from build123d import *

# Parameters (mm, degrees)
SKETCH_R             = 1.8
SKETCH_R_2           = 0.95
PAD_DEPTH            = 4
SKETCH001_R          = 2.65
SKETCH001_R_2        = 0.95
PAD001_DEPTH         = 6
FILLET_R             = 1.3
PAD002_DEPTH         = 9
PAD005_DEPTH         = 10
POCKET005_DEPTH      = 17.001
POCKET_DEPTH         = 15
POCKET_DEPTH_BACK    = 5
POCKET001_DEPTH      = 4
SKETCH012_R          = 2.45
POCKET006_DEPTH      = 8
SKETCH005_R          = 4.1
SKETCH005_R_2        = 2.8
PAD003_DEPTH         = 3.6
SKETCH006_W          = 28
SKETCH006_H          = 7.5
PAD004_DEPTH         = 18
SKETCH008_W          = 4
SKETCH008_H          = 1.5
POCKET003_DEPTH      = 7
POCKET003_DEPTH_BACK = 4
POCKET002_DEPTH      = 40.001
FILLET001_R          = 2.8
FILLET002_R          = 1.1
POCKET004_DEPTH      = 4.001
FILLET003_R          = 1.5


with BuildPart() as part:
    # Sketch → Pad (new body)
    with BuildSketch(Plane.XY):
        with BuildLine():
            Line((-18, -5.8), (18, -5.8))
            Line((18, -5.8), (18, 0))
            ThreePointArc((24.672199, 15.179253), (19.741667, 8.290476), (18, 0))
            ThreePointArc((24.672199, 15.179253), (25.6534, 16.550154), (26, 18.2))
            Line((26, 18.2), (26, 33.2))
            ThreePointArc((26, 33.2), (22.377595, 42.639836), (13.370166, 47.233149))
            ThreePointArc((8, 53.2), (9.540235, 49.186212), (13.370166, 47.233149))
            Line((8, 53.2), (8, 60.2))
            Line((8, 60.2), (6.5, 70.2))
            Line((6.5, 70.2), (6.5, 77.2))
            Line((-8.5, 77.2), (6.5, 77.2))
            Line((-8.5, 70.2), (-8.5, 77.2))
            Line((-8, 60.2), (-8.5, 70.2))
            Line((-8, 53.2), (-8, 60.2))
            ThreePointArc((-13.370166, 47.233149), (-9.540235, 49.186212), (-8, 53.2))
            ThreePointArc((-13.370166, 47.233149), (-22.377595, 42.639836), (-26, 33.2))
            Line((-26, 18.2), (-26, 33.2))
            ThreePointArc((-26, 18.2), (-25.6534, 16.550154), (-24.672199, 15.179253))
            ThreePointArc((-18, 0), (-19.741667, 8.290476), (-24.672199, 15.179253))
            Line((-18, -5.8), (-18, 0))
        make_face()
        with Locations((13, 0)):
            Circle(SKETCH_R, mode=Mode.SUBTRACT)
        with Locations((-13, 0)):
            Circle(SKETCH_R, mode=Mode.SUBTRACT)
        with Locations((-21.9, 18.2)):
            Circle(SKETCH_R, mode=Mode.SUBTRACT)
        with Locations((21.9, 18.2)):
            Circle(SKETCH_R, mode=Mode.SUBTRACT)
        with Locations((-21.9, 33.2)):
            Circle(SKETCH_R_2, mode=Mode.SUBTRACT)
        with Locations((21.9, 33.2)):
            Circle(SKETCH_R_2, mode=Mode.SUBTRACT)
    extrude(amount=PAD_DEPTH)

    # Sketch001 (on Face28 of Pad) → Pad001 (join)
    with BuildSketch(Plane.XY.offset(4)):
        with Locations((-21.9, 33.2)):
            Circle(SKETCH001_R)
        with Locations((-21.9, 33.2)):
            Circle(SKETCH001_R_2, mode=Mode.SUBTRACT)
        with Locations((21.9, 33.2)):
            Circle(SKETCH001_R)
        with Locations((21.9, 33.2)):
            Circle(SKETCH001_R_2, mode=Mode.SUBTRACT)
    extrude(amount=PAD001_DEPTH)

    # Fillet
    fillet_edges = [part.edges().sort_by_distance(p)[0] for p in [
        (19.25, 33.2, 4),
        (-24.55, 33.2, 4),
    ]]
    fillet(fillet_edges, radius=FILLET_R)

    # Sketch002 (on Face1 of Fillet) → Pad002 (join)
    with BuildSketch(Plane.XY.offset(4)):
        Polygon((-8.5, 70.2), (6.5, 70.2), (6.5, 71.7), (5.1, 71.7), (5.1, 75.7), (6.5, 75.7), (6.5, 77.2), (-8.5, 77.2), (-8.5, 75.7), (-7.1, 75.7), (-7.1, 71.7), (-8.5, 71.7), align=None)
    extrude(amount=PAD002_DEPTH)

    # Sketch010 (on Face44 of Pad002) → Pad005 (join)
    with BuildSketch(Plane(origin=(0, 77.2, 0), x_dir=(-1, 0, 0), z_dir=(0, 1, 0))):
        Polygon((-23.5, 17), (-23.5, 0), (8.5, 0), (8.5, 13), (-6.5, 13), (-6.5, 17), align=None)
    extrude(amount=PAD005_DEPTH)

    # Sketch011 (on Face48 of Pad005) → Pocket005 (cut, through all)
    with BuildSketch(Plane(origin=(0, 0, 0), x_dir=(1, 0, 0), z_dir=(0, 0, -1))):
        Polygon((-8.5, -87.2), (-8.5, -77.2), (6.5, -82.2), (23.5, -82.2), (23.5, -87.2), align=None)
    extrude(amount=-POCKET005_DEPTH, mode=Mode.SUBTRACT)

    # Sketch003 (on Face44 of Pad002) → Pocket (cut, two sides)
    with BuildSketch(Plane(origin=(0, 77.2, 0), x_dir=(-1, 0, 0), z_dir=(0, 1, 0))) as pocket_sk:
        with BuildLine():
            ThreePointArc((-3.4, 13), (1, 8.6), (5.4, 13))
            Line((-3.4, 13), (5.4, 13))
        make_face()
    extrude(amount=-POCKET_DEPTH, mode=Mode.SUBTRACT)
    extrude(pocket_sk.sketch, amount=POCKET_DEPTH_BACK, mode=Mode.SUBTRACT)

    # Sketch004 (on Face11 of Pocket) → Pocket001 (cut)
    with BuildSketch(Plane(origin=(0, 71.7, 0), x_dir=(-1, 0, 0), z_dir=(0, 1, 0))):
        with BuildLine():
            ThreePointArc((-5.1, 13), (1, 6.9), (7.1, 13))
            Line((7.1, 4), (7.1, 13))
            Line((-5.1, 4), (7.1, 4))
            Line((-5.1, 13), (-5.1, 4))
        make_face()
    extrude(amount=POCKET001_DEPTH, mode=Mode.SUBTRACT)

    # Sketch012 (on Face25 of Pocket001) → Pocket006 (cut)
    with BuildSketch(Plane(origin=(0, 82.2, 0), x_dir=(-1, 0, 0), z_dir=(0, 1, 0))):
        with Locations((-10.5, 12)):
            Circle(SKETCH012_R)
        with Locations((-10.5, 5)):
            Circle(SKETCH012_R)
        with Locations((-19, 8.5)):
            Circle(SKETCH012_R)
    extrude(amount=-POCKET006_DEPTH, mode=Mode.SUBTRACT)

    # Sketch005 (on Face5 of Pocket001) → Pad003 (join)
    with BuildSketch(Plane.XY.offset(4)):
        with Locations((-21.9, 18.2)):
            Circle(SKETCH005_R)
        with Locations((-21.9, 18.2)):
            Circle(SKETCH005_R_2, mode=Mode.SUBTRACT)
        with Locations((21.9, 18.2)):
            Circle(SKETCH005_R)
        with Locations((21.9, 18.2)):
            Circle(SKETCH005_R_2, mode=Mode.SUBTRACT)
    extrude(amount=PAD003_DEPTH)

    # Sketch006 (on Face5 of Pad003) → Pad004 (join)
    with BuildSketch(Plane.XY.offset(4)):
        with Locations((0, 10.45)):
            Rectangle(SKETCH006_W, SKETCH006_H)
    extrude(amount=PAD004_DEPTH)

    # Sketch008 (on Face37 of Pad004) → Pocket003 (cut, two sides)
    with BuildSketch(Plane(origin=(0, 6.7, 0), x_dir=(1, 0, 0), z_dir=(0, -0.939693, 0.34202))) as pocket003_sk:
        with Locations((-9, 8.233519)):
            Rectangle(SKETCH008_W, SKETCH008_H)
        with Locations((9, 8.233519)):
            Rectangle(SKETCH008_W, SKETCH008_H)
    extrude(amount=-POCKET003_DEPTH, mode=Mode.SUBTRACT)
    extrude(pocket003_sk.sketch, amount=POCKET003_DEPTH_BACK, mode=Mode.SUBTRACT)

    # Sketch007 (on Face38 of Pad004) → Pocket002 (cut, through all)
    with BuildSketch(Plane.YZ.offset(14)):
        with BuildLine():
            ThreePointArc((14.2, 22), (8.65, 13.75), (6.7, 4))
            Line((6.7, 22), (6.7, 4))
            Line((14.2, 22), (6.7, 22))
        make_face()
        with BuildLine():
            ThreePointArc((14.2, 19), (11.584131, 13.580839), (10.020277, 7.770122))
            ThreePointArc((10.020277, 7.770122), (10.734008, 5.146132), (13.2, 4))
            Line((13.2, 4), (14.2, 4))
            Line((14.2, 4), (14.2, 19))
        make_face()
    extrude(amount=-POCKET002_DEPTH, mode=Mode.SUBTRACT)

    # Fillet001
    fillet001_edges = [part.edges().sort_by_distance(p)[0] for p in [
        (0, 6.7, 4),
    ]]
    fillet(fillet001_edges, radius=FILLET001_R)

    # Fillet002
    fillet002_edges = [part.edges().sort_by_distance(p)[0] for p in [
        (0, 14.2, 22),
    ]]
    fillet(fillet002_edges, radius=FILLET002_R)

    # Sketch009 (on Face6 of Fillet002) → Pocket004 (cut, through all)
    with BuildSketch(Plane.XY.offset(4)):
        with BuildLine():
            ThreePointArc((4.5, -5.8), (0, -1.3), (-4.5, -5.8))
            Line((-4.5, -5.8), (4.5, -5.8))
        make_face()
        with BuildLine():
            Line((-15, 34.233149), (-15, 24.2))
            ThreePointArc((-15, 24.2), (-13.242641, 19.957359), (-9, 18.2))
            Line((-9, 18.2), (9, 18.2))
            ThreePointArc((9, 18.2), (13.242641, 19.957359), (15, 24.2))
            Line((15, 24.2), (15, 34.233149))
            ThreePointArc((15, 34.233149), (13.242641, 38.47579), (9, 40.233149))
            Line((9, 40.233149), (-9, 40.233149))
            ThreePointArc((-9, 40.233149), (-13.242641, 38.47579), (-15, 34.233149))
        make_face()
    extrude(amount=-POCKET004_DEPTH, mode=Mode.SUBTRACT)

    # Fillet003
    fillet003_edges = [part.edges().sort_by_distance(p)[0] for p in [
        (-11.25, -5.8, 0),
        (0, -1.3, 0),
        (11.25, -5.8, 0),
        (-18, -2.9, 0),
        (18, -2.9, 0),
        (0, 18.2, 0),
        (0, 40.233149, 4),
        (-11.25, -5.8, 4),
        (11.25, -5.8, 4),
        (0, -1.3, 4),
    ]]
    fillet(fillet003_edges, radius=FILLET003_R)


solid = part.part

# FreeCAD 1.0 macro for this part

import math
import FreeCAD as App
import Part
import Sketcher
Q = App.Units.Quantity


def edges_at(feature, points):
    """Names of the edges that pass closest to the given points."""
    edges = feature.Shape.Edges
    near = lambda p: min(range(len(edges)), key=lambda i: edges[i].distToShape(Part.Vertex(*p))[0])
    return sorted({f"Edge{near(p) + 1}" for p in points})


def add_polygon(sketch, points):
    """Adds a closed chain of lines whose ends are joined by coincident constraints."""
    first, n = sketch.GeometryCount, len(points)
    for a, b in zip(points, points[1:] + points[:1]):
        sketch.addGeometry(Part.LineSegment(App.Vector(*a, 0), App.Vector(*b, 0)), False)
    for i in range(n):
        sketch.addConstraint(Sketcher.Constraint("Coincident", first + i, 2, first + (i + 1) % n, 1))

doc = App.newDocument("Part")
params = doc.addObject("Spreadsheet::Sheet", "Params")
for row, (alias, value) in enumerate([
    ("sketch1_radius", "6.000001 mm"),
    ("sketch1_diameter", "3.6 mm"),
    ("sketch1_diameter2", "1.9 mm"),
    ("sketch1_width", "36 mm"),
    ("sketch1_width2", "15 mm"),
    ("pad1_length", "4 mm"),
    ("sketch2_diameter", "5.3 mm"),
    ("sketch2_diameter2", "1.9 mm"),
    ("pad2_length", "6 mm"),
    ("fillet_radius", "1.3 mm"),
    ("sketch3_width", "15 mm"),
    ("sketch3_height", "4 mm"),
    ("sketch3_width2", "1.4 mm"),
    ("sketch3_height2", "1.5 mm"),
    ("pad3_length", "9 mm"),
    ("sketch4_width", "32 mm"),
    ("sketch4_width2", "15 mm"),
    ("sketch4_height", "13 mm"),
    ("pad4_length", "10 mm"),
    ("sketch5_width", "32 mm"),
    ("sketch5_width2", "17 mm"),
    ("sketch5_height", "10 mm"),
    ("sketch5_height2", "5 mm"),
    ("sketch6_radius", "4.4 mm"),
    ("sketch7_radius", "6.1 mm"),
    ("sketch7_height", "9 mm"),
    ("pocket3_length", "4 mm"),
    ("sketch8_diameter", "4.9 mm"),
    ("pocket4_length", "8 mm"),
    ("sketch9_diameter", "8.2 mm"),
    ("sketch9_diameter2", "5.6 mm"),
    ("pad5_length", "3.6 mm"),
    ("sketch10_width", "28 mm"),
    ("sketch10_height", "7.5 mm"),
    ("pad6_length", "18 mm"),
    ("sketch11_width", "4 mm"),
    ("sketch11_height", "1.5 mm"),
    ("pocket5_length", "7 mm"),
    ("pocket5_length2", "4 mm"),
    ("sketch12_width", "1 mm"),
    ("sketch12_height", "18 mm"),
    ("sketch12_height2", "15 mm"),
    ("sketch12_radius", "25.35 mm"),
    ("fillet2_radius", "2.8 mm"),
    ("fillet3_radius", "1.1 mm"),
    ("sketch13_radius", "5.999999 mm"),
    ("sketch13_radius2", "4.5 mm"),
    ("sketch13_width", "18 mm"),
    ("fillet4_radius", "1.5 mm"),
], start=1):
    params.set(f"A{row}", alias)
    params.set(f"B{row}", "=" + value)
    params.setAlias(f"B{row}", alias)

body = doc.addObject("PartDesign::Body", "Body")

sketch1 = doc.addObject("Sketcher::SketchObject", "Sketch")
body.addObject(sketch1)
sketch1.AttachmentSupport = (doc.XY_Plane, [""])
sketch1.MapMode = "FlatFace"
sketch1.addGeometry([
    Part.LineSegment(App.Vector(-18, -5.8, 0), App.Vector(18, -5.8, 0)),
    Part.LineSegment(App.Vector(18, -5.8, 0), App.Vector(18, 0, 0)),
    Part.ArcOfCircle(Part.Circle(App.Vector(38.6, 0, 0), App.Vector(0, 0, 1), 20.6), math.radians(133), math.radians(180)),
    Part.ArcOfCircle(Part.Circle(App.Vector(21.9, 18.2, 0), App.Vector(0, 0, 1), 4.1), math.radians(-47), math.radians(0)),
    Part.LineSegment(App.Vector(26, 18.2, 0), App.Vector(26, 33.2, 0)),
    Part.ArcOfCircle(Part.Circle(App.Vector(11.9, 33.2, 0), App.Vector(0, 0, 1), 14.1), math.radians(0), math.radians(84)),
    Part.ArcOfCircle(Part.Circle(App.Vector(14, 53.2, 0), App.Vector(0, 0, 1), 6), math.radians(-180), math.radians(-96)),
    Part.LineSegment(App.Vector(8, 53.2, 0), App.Vector(8, 60.2, 0)),
    Part.LineSegment(App.Vector(8, 60.2, 0), App.Vector(6.5, 70.2, 0)),
    Part.LineSegment(App.Vector(6.5, 70.2, 0), App.Vector(6.5, 77.2, 0)),
    Part.LineSegment(App.Vector(6.5, 77.2, 0), App.Vector(-8.5, 77.2, 0)),
    Part.LineSegment(App.Vector(-8.5, 77.2, 0), App.Vector(-8.5, 70.2, 0)),
    Part.LineSegment(App.Vector(-8.5, 70.2, 0), App.Vector(-8, 60.2, 0)),
    Part.LineSegment(App.Vector(-8, 60.2, 0), App.Vector(-8, 53.2, 0)),
    Part.ArcOfCircle(Part.Circle(App.Vector(-14, 53.2, 0), App.Vector(0, 0, 1), 6), math.radians(-84), math.radians(0)),
    Part.ArcOfCircle(Part.Circle(App.Vector(-11.9, 33.2, 0), App.Vector(0, 0, 1), 14.1), math.radians(96), math.radians(180)),
    Part.LineSegment(App.Vector(-26, 33.2, 0), App.Vector(-26, 18.2, 0)),
    Part.ArcOfCircle(Part.Circle(App.Vector(-21.9, 18.2, 0), App.Vector(0, 0, 1), 4.1), math.radians(180), math.radians(227)),
    Part.ArcOfCircle(Part.Circle(App.Vector(-38.6, 0, 0), App.Vector(0, 0, 1), 20.6), math.radians(0), math.radians(47)),
    Part.LineSegment(App.Vector(-18, 0, 0), App.Vector(-18, -5.8, 0)),
    Part.Circle(App.Vector(-13, 0, 0), App.Vector(0, 0, 1), 1.8),
    Part.Circle(App.Vector(13, 0, 0), App.Vector(0, 0, 1), 1.8),
    Part.Circle(App.Vector(-21.9, 18.2, 0), App.Vector(0, 0, 1), 1.8),
    Part.Circle(App.Vector(-21.9, 33.2, 0), App.Vector(0, 0, 1), 0.9),
    Part.Circle(App.Vector(21.9, 18.2, 0), App.Vector(0, 0, 1), 1.8),
    Part.Circle(App.Vector(21.9, 33.2, 0), App.Vector(0, 0, 1), 0.9),
], False)
sketch1.addConstraint([
    Sketcher.Constraint("Coincident", 0, 2, 1, 1),
    Sketcher.Constraint("Tangent", 1, 2, 2, 2),
    Sketcher.Constraint("Tangent", 2, 1, 3, 1),
    Sketcher.Constraint("Tangent", 3, 2, 4, 1),
    Sketcher.Constraint("Tangent", 4, 2, 5, 1),
    Sketcher.Constraint("Tangent", 5, 2, 6, 2),
    Sketcher.Constraint("Tangent", 6, 1, 7, 1),
    Sketcher.Constraint("Coincident", 7, 2, 8, 1),
    Sketcher.Constraint("Coincident", 8, 2, 9, 1),
    Sketcher.Constraint("Coincident", 9, 2, 10, 1),
    Sketcher.Constraint("Coincident", 10, 2, 11, 1),
    Sketcher.Constraint("Coincident", 11, 2, 12, 1),
    Sketcher.Constraint("Coincident", 12, 2, 13, 1),
    Sketcher.Constraint("Tangent", 13, 2, 14, 2),
    Sketcher.Constraint("Tangent", 14, 1, 15, 1),
    Sketcher.Constraint("Tangent", 15, 2, 16, 1),
    Sketcher.Constraint("Tangent", 16, 2, 17, 1),
    Sketcher.Constraint("Tangent", 17, 2, 18, 2),
    Sketcher.Constraint("Tangent", 18, 1, 19, 1),
    Sketcher.Constraint("Coincident", 19, 2, 0, 1),
    Sketcher.Constraint("Horizontal", 0),
    Sketcher.Constraint("Vertical", 1),
    Sketcher.Constraint("Vertical", 4),
    Sketcher.Constraint("Vertical", 7),
    Sketcher.Constraint("Vertical", 9),
    Sketcher.Constraint("Horizontal", 10),
    Sketcher.Constraint("Vertical", 11),
    Sketcher.Constraint("Vertical", 13),
    Sketcher.Constraint("Vertical", 16),
    Sketcher.Constraint("Vertical", 19),
    Sketcher.Constraint("Coincident", 22, 3, 17, 3),
    Sketcher.Constraint("Coincident", 24, 3, 3, 3),
    Sketcher.Constraint("Equal", 6, 14),
    Sketcher.Constraint("Equal", 5, 15),
    Sketcher.Constraint("Equal", 3, 17),
    Sketcher.Constraint("Equal", 2, 18),
    Sketcher.Constraint("Equal", 20, 21),
    Sketcher.Constraint("Equal", 21, 22),
    Sketcher.Constraint("Equal", 22, 24),
    Sketcher.Constraint("Equal", 23, 25),
    Sketcher.Constraint("Symmetric", 2, 3, 18, 3, -1, 1),
    Sketcher.Constraint("Symmetric", 20, 3, 21, 3, -1, 1),
    Sketcher.Constraint("Symmetric", 6, 3, 14, 3, -2),
    Sketcher.Constraint("Symmetric", 3, 3, 17, 3, -2),
    Sketcher.Constraint("Symmetric", 23, 3, 25, 3, -2),
    Sketcher.Constraint("PointOnObject", 20, 3, -1),
    Sketcher.Constraint("Horizontal", 15, 3, 23, 3),
    Sketcher.Constraint("Horizontal", 8, 2, 11, 2),
    Sketcher.Constraint("Horizontal", 7, 2, 12, 2),
    Sketcher.Constraint("Vertical", 22, 3, 23, 3),
    Sketcher.Constraint("Equal", 10, 4),
    Sketcher.Constraint("Equal", 7, 9),
    Sketcher.Constraint("Radius", 6, Q("6.000001 mm")),
    Sketcher.Constraint("Diameter", 20, Q("3.6 mm")),
    Sketcher.Constraint("Diameter", 23, Q("1.9 mm")),
    Sketcher.Constraint("DistanceX", 0, 1, 0, 2, Q("36 mm")),
    Sketcher.Constraint("DistanceX", 10, 2, 10, 1, Q("15 mm")),
    Sketcher.Constraint("DistanceY", 7, 1, 7, 2, Q("7 mm")),
    Sketcher.Constraint("DistanceY", 1, 1, 1, 2, Q("5.8 mm")),
    Sketcher.Constraint("DistanceX", -1, 1, 6, 3, Q("14.000001 mm")),
    Sketcher.Constraint("DistanceX", 20, 3, -1, 1, Q("13 mm")),
    Sketcher.Constraint("DistanceX", -1, 1, 3, 2, Q("26 mm")),
    Sketcher.Constraint("DistanceY", 5, 3, 6, 3, Q("20 mm")),
    Sketcher.Constraint("DistanceY", 0, 2, 24, 3, Q("24 mm")),
    Sketcher.Constraint("DistanceY", 7, 2, 8, 2, Q("10 mm")),
    Sketcher.Constraint("DistanceX", 22, 3, -1, 1, Q("21.9 mm")),
    Sketcher.Constraint("DistanceX", -1, 1, 8, 2, Q("6.5 mm")),
])
sketch1.setExpression("Constraints[52]", "Params.sketch1_radius")
sketch1.setExpression("Constraints[53]", "Params.sketch1_diameter")
sketch1.setExpression("Constraints[54]", "Params.sketch1_diameter2")
sketch1.setExpression("Constraints[55]", "Params.sketch1_width")
sketch1.setExpression("Constraints[56]", "Params.sketch1_width2")
pad1 = doc.addObject("PartDesign::Pad", "Pad")
body.addObject(pad1)
pad1.Profile = sketch1
pad1.setExpression("Length", "Params.pad1_length")

sketch2 = doc.addObject("Sketcher::SketchObject", "Sketch001")
body.addObject(sketch2)
sketch2.AttachmentSupport = (doc.XY_Plane, [""])
sketch2.MapMode = "FlatFace"
sketch2.AttachmentOffset = App.Placement(App.Vector(0, 0, 4), App.Rotation())
sketch2.addGeometry([
    Part.Circle(App.Vector(-21.9, 33.2, 0), App.Vector(0, 0, 1), 2.6),
    Part.Circle(App.Vector(-21.9, 33.2, 0), App.Vector(0, 0, 1), 0.9),
    Part.Circle(App.Vector(21.9, 33.2, 0), App.Vector(0, 0, 1), 2.6),
    Part.Circle(App.Vector(21.9, 33.2, 0), App.Vector(0, 0, 1), 0.9),
], False)
sketch2.addConstraint([
    Sketcher.Constraint("Coincident", 1, 3, 0, 3),
    Sketcher.Constraint("Coincident", 3, 3, 2, 3),
    Sketcher.Constraint("Equal", 0, 2),
    Sketcher.Constraint("Equal", 1, 3),
    Sketcher.Constraint("Symmetric", 0, 3, 2, 3, -2),
    Sketcher.Constraint("Diameter", 0, Q("5.3 mm")),
    Sketcher.Constraint("Diameter", 1, Q("1.9 mm")),
    Sketcher.Constraint("DistanceX", 0, 3, -1, 1, Q("21.9 mm")),
    Sketcher.Constraint("DistanceY", -1, 1, 0, 3, Q("33.2 mm")),
])
sketch2.setExpression("Constraints[5]", "Params.sketch2_diameter")
sketch2.setExpression("Constraints[6]", "Params.sketch2_diameter2")
pad2 = doc.addObject("PartDesign::Pad", "Pad001")
body.addObject(pad2)
pad2.Profile = sketch2
pad2.setExpression("Length", "Params.pad2_length")
doc.recompute()

fillet = doc.addObject("PartDesign::Fillet", "Fillet")
body.addObject(fillet)
fillet.Base = (pad2, edges_at(pad2, [(19.25, 33.2, 4), (-24.55, 33.2, 4)]))
fillet.setExpression("Radius", "Params.fillet_radius")

sketch3 = doc.addObject("Sketcher::SketchObject", "Sketch002")
body.addObject(sketch3)
sketch3.AttachmentSupport = (doc.XY_Plane, [""])
sketch3.MapMode = "FlatFace"
sketch3.AttachmentOffset = App.Placement(App.Vector(0, 0, 4), App.Rotation())
add_polygon(sketch3, [(-8.5, 70.2), (6.5, 70.2), (6.5, 71.7), (5.1, 71.7), (5.1, 75.7), (6.5, 75.7), (6.5, 77.2), (-8.5, 77.2), (-8.5, 75.7), (-7.1, 75.7), (-7.1, 71.7), (-8.5, 71.7)])
sketch3.addConstraint([
    Sketcher.Constraint("Horizontal", 0),
    Sketcher.Constraint("Vertical", 1),
    Sketcher.Constraint("Horizontal", 2),
    Sketcher.Constraint("Vertical", 3),
    Sketcher.Constraint("Horizontal", 4),
    Sketcher.Constraint("Vertical", 5),
    Sketcher.Constraint("Horizontal", 6),
    Sketcher.Constraint("Vertical", 7),
    Sketcher.Constraint("Horizontal", 8),
    Sketcher.Constraint("Vertical", 9),
    Sketcher.Constraint("Horizontal", 10),
    Sketcher.Constraint("Vertical", 11),
    Sketcher.Constraint("Horizontal", 4, 2, 7, 2),
    Sketcher.Constraint("Horizontal", 2, 2, 9, 2),
    Sketcher.Constraint("Vertical", 1, 2, 4, 2),
    Sketcher.Constraint("Vertical", 7, 2, 10, 2),
    Sketcher.Constraint("Equal", 4, 8),
    Sketcher.Constraint("Equal", 1, 5),
    Sketcher.Constraint("DistanceX", 0, 1, 0, 2, Q("15 mm")),
    Sketcher.Constraint("DistanceY", 3, 1, 3, 2, Q("4 mm")),
    Sketcher.Constraint("DistanceX", 2, 2, 2, 1, Q("1.4 mm")),
    Sketcher.Constraint("DistanceY", 1, 1, 1, 2, Q("1.5 mm")),
    Sketcher.Constraint("DistanceX", -1, 1, 0, 2, Q("6.5 mm")),
    Sketcher.Constraint("DistanceY", -1, 1, 0, 2, Q("70.2 mm")),
])
sketch3.setExpression("Constraints[30]", "Params.sketch3_width")
sketch3.setExpression("Constraints[31]", "Params.sketch3_height")
sketch3.setExpression("Constraints[32]", "Params.sketch3_width2")
sketch3.setExpression("Constraints[33]", "Params.sketch3_height2")
pad3 = doc.addObject("PartDesign::Pad", "Pad002")
body.addObject(pad3)
pad3.Profile = sketch3
pad3.setExpression("Length", "Params.pad3_length")

sketch4 = doc.addObject("Sketcher::SketchObject", "Sketch003")
body.addObject(sketch4)
sketch4.AttachmentSupport = (doc.XZ_Plane, [""])
sketch4.MapMode = "FlatFace"
sketch4.AttachmentOffset = App.Placement(App.Vector(0, 0, -77.2), App.Rotation())
add_polygon(sketch4, [(23.5, 17), (23.5, 0), (-8.5, 0), (-8.5, 13), (6.5, 13), (6.5, 17)])
sketch4.addConstraint([
    Sketcher.Constraint("Vertical", 0),
    Sketcher.Constraint("Horizontal", 1),
    Sketcher.Constraint("Vertical", 2),
    Sketcher.Constraint("Horizontal", 3),
    Sketcher.Constraint("Vertical", 4),
    Sketcher.Constraint("Horizontal", 5),
    Sketcher.Constraint("PointOnObject", 0, 2, -1),
    Sketcher.Constraint("Equal", 5, 0),
    Sketcher.Constraint("DistanceX", 1, 2, 1, 1, Q("32 mm")),
    Sketcher.Constraint("DistanceX", 3, 1, 3, 2, Q("15 mm")),
    Sketcher.Constraint("DistanceY", 2, 1, 2, 2, Q("13 mm")),
    Sketcher.Constraint("DistanceX", -1, 1, 0, 2, Q("23.5 mm")),
])
sketch4.setExpression("Constraints[14]", "Params.sketch4_width")
sketch4.setExpression("Constraints[15]", "Params.sketch4_width2")
sketch4.setExpression("Constraints[16]", "Params.sketch4_height")
pad4 = doc.addObject("PartDesign::Pad", "Pad003")
body.addObject(pad4)
pad4.Profile = sketch4
pad4.setExpression("Length", "Params.pad4_length")
pad4.Reversed = True

sketch5 = doc.addObject("Sketcher::SketchObject", "Sketch004")
body.addObject(sketch5)
sketch5.AttachmentSupport = (doc.XY_Plane, [""])
sketch5.MapMode = "FlatFace"
add_polygon(sketch5, [(-8, 77), (-8, 87), (24, 87), (24, 82), (6, 82)])
sketch5.addConstraint([
    Sketcher.Constraint("Vertical", 0),
    Sketcher.Constraint("Horizontal", 1),
    Sketcher.Constraint("Vertical", 2),
    Sketcher.Constraint("Horizontal", 3),
    Sketcher.Constraint("DistanceX", 1, 1, 1, 2, Q("32 mm")),
    Sketcher.Constraint("DistanceX", 3, 2, 3, 1, Q("17 mm")),
    Sketcher.Constraint("DistanceY", 0, 1, 0, 2, Q("10 mm")),
    Sketcher.Constraint("DistanceY", 2, 2, 2, 1, Q("5 mm")),
    Sketcher.Constraint("DistanceX", 0, 2, -1, 1, Q("8.5 mm")),
    Sketcher.Constraint("DistanceY", -1, 1, 0, 2, Q("87.2 mm")),
])
sketch5.setExpression("Constraints[9]", "Params.sketch5_width")
sketch5.setExpression("Constraints[10]", "Params.sketch5_width2")
sketch5.setExpression("Constraints[11]", "Params.sketch5_height")
sketch5.setExpression("Constraints[12]", "Params.sketch5_height2")
pocket1 = doc.addObject("PartDesign::Pocket", "Pocket")
body.addObject(pocket1)
pocket1.Profile = sketch5
pocket1.Type = "ThroughAll"
pocket1.Reversed = True

sketch6 = doc.addObject("Sketcher::SketchObject", "Sketch005")
body.addObject(sketch6)
sketch6.AttachmentSupport = (doc.XZ_Plane, [""])
sketch6.MapMode = "FlatFace"
sketch6.AttachmentOffset = App.Placement(App.Vector(0, 0, -77.2), App.Rotation())
sketch6.addGeometry([
    Part.ArcOfCircle(Part.Circle(App.Vector(-1, 13, 0), App.Vector(0, 0, 1), 4.4), math.radians(180), math.radians(360)),
    Part.LineSegment(App.Vector(-5.4, 13, 0), App.Vector(3.4, 13, 0)),
], False)
sketch6.addConstraint([
    Sketcher.Constraint("Coincident", 0, 1, 1, 1),
    Sketcher.Constraint("Coincident", 1, 2, 0, 2),
    Sketcher.Constraint("Horizontal", 1),
    Sketcher.Constraint("Radius", 0, Q("4.4 mm")),
    Sketcher.Constraint("DistanceX", 0, 3, -1, 1, Q("1 mm")),
    Sketcher.Constraint("DistanceY", -1, 1, 0, 3, Q("13 mm")),
    Sketcher.Constraint("DistanceY", -1, 1, 0, 1, Q("13 mm")),
])
sketch6.setExpression("Constraints[3]", "Params.sketch6_radius")
pocket2 = doc.addObject("PartDesign::Pocket", "Pocket001")
body.addObject(pocket2)
pocket2.Profile = sketch6
pocket2.Type = "ThroughAll"
pocket2.Midplane = True

sketch7 = doc.addObject("Sketcher::SketchObject", "Sketch006")
body.addObject(sketch7)
sketch7.AttachmentSupport = (doc.XZ_Plane, [""])
sketch7.MapMode = "FlatFace"
sketch7.AttachmentOffset = App.Placement(App.Vector(0, 0, -71.7), App.Rotation())
sketch7.addGeometry([
    Part.ArcOfCircle(Part.Circle(App.Vector(-1, 13, 0), App.Vector(0, 0, 1), 6), math.radians(180), math.radians(360)),
    Part.LineSegment(App.Vector(5, 13, 0), App.Vector(5, 4, 0)),
    Part.LineSegment(App.Vector(5, 4, 0), App.Vector(-7, 4, 0)),
    Part.LineSegment(App.Vector(-7, 4, 0), App.Vector(-7, 13, 0)),
], False)
sketch7.addConstraint([
    Sketcher.Constraint("Tangent", 0, 2, 1, 1),
    Sketcher.Constraint("Coincident", 1, 2, 2, 1),
    Sketcher.Constraint("Coincident", 2, 2, 3, 1),
    Sketcher.Constraint("Tangent", 3, 2, 0, 1),
    Sketcher.Constraint("Vertical", 1),
    Sketcher.Constraint("Horizontal", 2),
    Sketcher.Constraint("Vertical", 3),
    Sketcher.Constraint("Radius", 0, Q("6.1 mm")),
    Sketcher.Constraint("DistanceY", 1, 2, 1, 1, Q("9 mm")),
    Sketcher.Constraint("DistanceX", 0, 3, -1, 1, Q("1 mm")),
    Sketcher.Constraint("DistanceY", -1, 1, 0, 3, Q("13 mm")),
])
sketch7.setExpression("Constraints[7]", "Params.sketch7_radius")
sketch7.setExpression("Constraints[8]", "Params.sketch7_height")
pocket3 = doc.addObject("PartDesign::Pocket", "Pocket002")
body.addObject(pocket3)
pocket3.Profile = sketch7
pocket3.setExpression("Length", "Params.pocket3_length")

sketch8 = doc.addObject("Sketcher::SketchObject", "Sketch007")
body.addObject(sketch8)
sketch8.AttachmentSupport = (doc.XZ_Plane, [""])
sketch8.MapMode = "FlatFace"
sketch8.AttachmentOffset = App.Placement(App.Vector(0, 0, -82.2), App.Rotation())
sketch8.addGeometry([
    Part.Circle(App.Vector(10.5, 12, 0), App.Vector(0, 0, 1), 2.5),
    Part.Circle(App.Vector(10.5, 5, 0), App.Vector(0, 0, 1), 2.5),
    Part.Circle(App.Vector(19, 8.5, 0), App.Vector(0, 0, 1), 2.5),
], False)
sketch8.addConstraint([
    Sketcher.Constraint("Equal", 0, 1),
    Sketcher.Constraint("Equal", 1, 2),
    Sketcher.Constraint("Vertical", 0, 3, 1, 3),
    Sketcher.Constraint("Diameter", 0, Q("4.9 mm")),
    Sketcher.Constraint("DistanceY", -1, 1, 0, 3, Q("12 mm")),
    Sketcher.Constraint("DistanceY", -1, 1, 1, 3, Q("5 mm")),
    Sketcher.Constraint("DistanceX", -1, 1, 2, 3, Q("19 mm")),
    Sketcher.Constraint("DistanceX", -1, 1, 0, 3, Q("10.5 mm")),
    Sketcher.Constraint("DistanceY", -1, 1, 2, 3, Q("8.5 mm")),
])
sketch8.setExpression("Constraints[3]", "Params.sketch8_diameter")
pocket4 = doc.addObject("PartDesign::Pocket", "Pocket003")
body.addObject(pocket4)
pocket4.Profile = sketch8
pocket4.setExpression("Length", "Params.pocket4_length")
pocket4.Reversed = True

sketch9 = doc.addObject("Sketcher::SketchObject", "Sketch008")
body.addObject(sketch9)
sketch9.AttachmentSupport = (doc.XY_Plane, [""])
sketch9.MapMode = "FlatFace"
sketch9.AttachmentOffset = App.Placement(App.Vector(0, 0, 4), App.Rotation())
sketch9.addGeometry([
    Part.Circle(App.Vector(-21.9, 18.2, 0), App.Vector(0, 0, 1), 4.1),
    Part.Circle(App.Vector(-21.9, 18.2, 0), App.Vector(0, 0, 1), 2.8),
    Part.Circle(App.Vector(21.9, 18.2, 0), App.Vector(0, 0, 1), 4.1),
    Part.Circle(App.Vector(21.9, 18.2, 0), App.Vector(0, 0, 1), 2.8),
], False)
sketch9.addConstraint([
    Sketcher.Constraint("Coincident", 1, 3, 0, 3),
    Sketcher.Constraint("Coincident", 3, 3, 2, 3),
    Sketcher.Constraint("Equal", 0, 2),
    Sketcher.Constraint("Equal", 1, 3),
    Sketcher.Constraint("Symmetric", 0, 3, 2, 3, -2),
    Sketcher.Constraint("Diameter", 0, Q("8.2 mm")),
    Sketcher.Constraint("Diameter", 1, Q("5.6 mm")),
    Sketcher.Constraint("DistanceX", 0, 3, -1, 1, Q("21.9 mm")),
    Sketcher.Constraint("DistanceY", -1, 1, 0, 3, Q("18.2 mm")),
])
sketch9.setExpression("Constraints[5]", "Params.sketch9_diameter")
sketch9.setExpression("Constraints[6]", "Params.sketch9_diameter2")
pad5 = doc.addObject("PartDesign::Pad", "Pad004")
body.addObject(pad5)
pad5.Profile = sketch9
pad5.setExpression("Length", "Params.pad5_length")

sketch10 = doc.addObject("Sketcher::SketchObject", "Sketch009")
body.addObject(sketch10)
sketch10.AttachmentSupport = (doc.XY_Plane, [""])
sketch10.MapMode = "FlatFace"
sketch10.AttachmentOffset = App.Placement(App.Vector(0, 0, 4), App.Rotation())
add_polygon(sketch10, [(-14, 14), (-14, 7), (14, 7), (14, 14)])
sketch10.addConstraint([
    Sketcher.Constraint("Vertical", 0),
    Sketcher.Constraint("Horizontal", 1),
    Sketcher.Constraint("Vertical", 2),
    Sketcher.Constraint("Horizontal", 3),
    Sketcher.Constraint("DistanceX", 1, 1, 1, 2, Q("28 mm")),
    Sketcher.Constraint("DistanceY", 0, 2, 0, 1, Q("7.5 mm")),
    Sketcher.Constraint("DistanceX", 0, 2, -1, 1, Q("14 mm")),
    Sketcher.Constraint("DistanceY", -1, 1, 0, 2, Q("6.7 mm")),
])
sketch10.setExpression("Constraints[8]", "Params.sketch10_width")
sketch10.setExpression("Constraints[9]", "Params.sketch10_height")
pad6 = doc.addObject("PartDesign::Pad", "Pad005")
body.addObject(pad6)
pad6.Profile = sketch10
pad6.setExpression("Length", "Params.pad6_length")

sketch11 = doc.addObject("Sketcher::SketchObject", "Sketch010")
body.addObject(sketch11)
sketch11.Placement = App.Placement(App.Vector(0, 6.7, 0), App.Rotation(App.Vector(1, 0, 0), App.Vector(0, 0.342019895, 0.939692711), App.Vector(0, -0.939692711, 0.342019895), "ZXY"))
add_polygon(sketch11, [(-11, 9), (-11, 7.5), (-7, 7.5), (-7, 9)])
add_polygon(sketch11, [(7, 9), (7, 7.5), (11, 7.5), (11, 9)])
sketch11.addConstraint([
    Sketcher.Constraint("Vertical", 0),
    Sketcher.Constraint("Horizontal", 1),
    Sketcher.Constraint("Vertical", 2),
    Sketcher.Constraint("Horizontal", 3),
    Sketcher.Constraint("Vertical", 4),
    Sketcher.Constraint("Horizontal", 5),
    Sketcher.Constraint("Vertical", 6),
    Sketcher.Constraint("Horizontal", 7),
    Sketcher.Constraint("Symmetric", 1, 2, 4, 2, -2),
    Sketcher.Constraint("Symmetric", 3, 2, 6, 2, -2),
    Sketcher.Constraint("DistanceX", 1, 1, 1, 2, Q("4 mm")),
    Sketcher.Constraint("DistanceY", 0, 2, 0, 1, Q("1.5 mm")),
    Sketcher.Constraint("DistanceX", 0, 2, -1, 1, Q("11 mm")),
    Sketcher.Constraint("DistanceY", -1, 1, 0, 2, Q("7.483519 mm")),
])
sketch11.setExpression("Constraints[18]", "Params.sketch11_width")
sketch11.setExpression("Constraints[19]", "Params.sketch11_height")
pocket5 = doc.addObject("PartDesign::Pocket", "Pocket004")
body.addObject(pocket5)
pocket5.Profile = sketch11
pocket5.Type = "TwoLengths"
pocket5.setExpression("Length", "Params.pocket5_length")
pocket5.setExpression("Length2", "Params.pocket5_length2")

sketch12 = doc.addObject("Sketcher::SketchObject", "Sketch011")
body.addObject(sketch12)
sketch12.AttachmentSupport = (doc.YZ_Plane, [""])
sketch12.MapMode = "FlatFace"
sketch12.AttachmentOffset = App.Placement(App.Vector(0, 0, 14), App.Rotation())
sketch12.addGeometry([
    Part.ArcOfCircle(Part.Circle(App.Vector(32, 4, 0), App.Vector(0, 0, 1), 25.4), math.radians(135), math.radians(180)),
    Part.LineSegment(App.Vector(14.2, 22, 0), App.Vector(6.7, 22, 0)),
    Part.LineSegment(App.Vector(6.7, 22, 0), App.Vector(6.7, 4, 0)),
    Part.ArcOfCircle(Part.Circle(App.Vector(41.8, 2.3, 0), App.Vector(0, 0, 1), 32.3), math.radians(149), math.radians(170)),
    Part.ArcOfCircle(Part.Circle(App.Vector(13.2, 7.2, 0), App.Vector(0, 0, 1), 3.2), math.radians(170), math.radians(270)),
    Part.LineSegment(App.Vector(13.2, 4, 0), App.Vector(14.2, 4, 0)),
    Part.LineSegment(App.Vector(14.2, 4, 0), App.Vector(14.2, 19, 0)),
], False)
sketch12.addConstraint([
    Sketcher.Constraint("Coincident", 0, 1, 1, 1),
    Sketcher.Constraint("Coincident", 1, 2, 2, 1),
    Sketcher.Constraint("Tangent", 2, 2, 0, 2),
    Sketcher.Constraint("Tangent", 3, 2, 4, 1),
    Sketcher.Constraint("Tangent", 4, 2, 5, 1),
    Sketcher.Constraint("Coincident", 5, 2, 6, 1),
    Sketcher.Constraint("Coincident", 6, 2, 3, 1),
    Sketcher.Constraint("Horizontal", 1),
    Sketcher.Constraint("Vertical", 2),
    Sketcher.Constraint("Horizontal", 5),
    Sketcher.Constraint("Vertical", 6),
    Sketcher.Constraint("Horizontal", 2, 2, 4, 2),
    Sketcher.Constraint("Vertical", 0, 1, 5, 2),
    Sketcher.Constraint("DistanceX", 5, 1, 5, 2, Q("1 mm")),
    Sketcher.Constraint("DistanceY", 2, 2, 2, 1, Q("18 mm")),
    Sketcher.Constraint("DistanceY", 6, 1, 6, 2, Q("15 mm")),
    Sketcher.Constraint("Radius", 0, Q("25.35 mm")),
    Sketcher.Constraint("DistanceY", -1, 1, 0, 3, Q("4 mm")),
    Sketcher.Constraint("DistanceX", -1, 1, 4, 3, Q("13.199999 mm")),
    Sketcher.Constraint("Radius", 4, Q("3.22595 mm")),
    Sketcher.Constraint("Radius", 3, Q("32.257837 mm")),
])
sketch12.setExpression("Constraints[13]", "Params.sketch12_width")
sketch12.setExpression("Constraints[14]", "Params.sketch12_height")
sketch12.setExpression("Constraints[15]", "Params.sketch12_height2")
sketch12.setExpression("Constraints[16]", "Params.sketch12_radius")
pocket6 = doc.addObject("PartDesign::Pocket", "Pocket005")
body.addObject(pocket6)
pocket6.Profile = sketch12
pocket6.Type = "ThroughAll"
doc.recompute()

fillet2 = doc.addObject("PartDesign::Fillet", "Fillet001")
body.addObject(fillet2)
fillet2.Base = (pocket6, edges_at(pocket6, [(0, 6.7, 4)]))
fillet2.setExpression("Radius", "Params.fillet2_radius")
doc.recompute()

fillet3 = doc.addObject("PartDesign::Fillet", "Fillet002")
body.addObject(fillet3)
fillet3.Base = (fillet2, edges_at(fillet2, [(0, 14.2, 22)]))
fillet3.setExpression("Radius", "Params.fillet3_radius")

sketch13 = doc.addObject("Sketcher::SketchObject", "Sketch012")
body.addObject(sketch13)
sketch13.AttachmentSupport = (doc.XY_Plane, [""])
sketch13.MapMode = "FlatFace"
sketch13.AttachmentOffset = App.Placement(App.Vector(0, 0, 4), App.Rotation())
sketch13.addGeometry([
    Part.ArcOfCircle(Part.Circle(App.Vector(0, -5.8, 0), App.Vector(0, 0, 1), 4.5), math.radians(0), math.radians(180)),
    Part.LineSegment(App.Vector(-4.5, -5.8, 0), App.Vector(4.5, -5.8, 0)),
    Part.LineSegment(App.Vector(-15, 34.2, 0), App.Vector(-15, 24.2, 0)),
    Part.ArcOfCircle(Part.Circle(App.Vector(-9, 24.2, 0), App.Vector(0, 0, 1), 6), math.radians(180), math.radians(270)),
    Part.LineSegment(App.Vector(-9, 18.2, 0), App.Vector(9, 18.2, 0)),
    Part.ArcOfCircle(Part.Circle(App.Vector(9, 24.2, 0), App.Vector(0, 0, 1), 6), math.radians(-90), math.radians(0)),
    Part.LineSegment(App.Vector(15, 24.2, 0), App.Vector(15, 34.2, 0)),
    Part.ArcOfCircle(Part.Circle(App.Vector(9, 34.2, 0), App.Vector(0, 0, 1), 6), math.radians(0), math.radians(90)),
    Part.LineSegment(App.Vector(9, 40.2, 0), App.Vector(-9, 40.2, 0)),
    Part.ArcOfCircle(Part.Circle(App.Vector(-9, 34.2, 0), App.Vector(0, 0, 1), 6), math.radians(90), math.radians(180)),
], False)
sketch13.addConstraint([
    Sketcher.Constraint("Coincident", 0, 1, 1, 2),
    Sketcher.Constraint("Coincident", 1, 1, 0, 2),
    Sketcher.Constraint("Tangent", 2, 2, 3, 1),
    Sketcher.Constraint("Tangent", 3, 2, 4, 1),
    Sketcher.Constraint("Tangent", 4, 2, 5, 1),
    Sketcher.Constraint("Tangent", 5, 2, 6, 1),
    Sketcher.Constraint("Tangent", 6, 2, 7, 1),
    Sketcher.Constraint("Tangent", 7, 2, 8, 1),
    Sketcher.Constraint("Tangent", 8, 2, 9, 1),
    Sketcher.Constraint("Tangent", 9, 2, 2, 1),
    Sketcher.Constraint("Horizontal", 1),
    Sketcher.Constraint("Vertical", 2),
    Sketcher.Constraint("Horizontal", 4),
    Sketcher.Constraint("Vertical", 6),
    Sketcher.Constraint("Horizontal", 8),
    Sketcher.Constraint("Equal", 3, 5),
    Sketcher.Constraint("Equal", 5, 7),
    Sketcher.Constraint("Equal", 7, 9),
    Sketcher.Constraint("PointOnObject", 0, 3, -2),
    Sketcher.Constraint("Radius", 3, Q("5.999999 mm")),
    Sketcher.Constraint("Radius", 0, Q("4.5 mm")),
    Sketcher.Constraint("DistanceX", 4, 1, 4, 2, Q("18 mm")),
    Sketcher.Constraint("DistanceX", 3, 3, -1, 1, Q("9.000001 mm")),
    Sketcher.Constraint("DistanceY", 0, 3, 3, 3, Q("29.999999 mm")),
    Sketcher.Constraint("DistanceY", 0, 1, 5, 3, Q("29.999999 mm")),
    Sketcher.Constraint("DistanceY", 0, 3, -1, 1, Q("5.8 mm")),
    Sketcher.Constraint("DistanceY", 2, 2, 2, 1, Q("10.033149 mm")),
])
sketch13.setExpression("Constraints[19]", "Params.sketch13_radius")
sketch13.setExpression("Constraints[20]", "Params.sketch13_radius2")
sketch13.setExpression("Constraints[21]", "Params.sketch13_width")
pocket7 = doc.addObject("PartDesign::Pocket", "Pocket006")
body.addObject(pocket7)
pocket7.Profile = sketch13
pocket7.Type = "ThroughAll"
doc.recompute()

fillet4 = doc.addObject("PartDesign::Fillet", "Fillet003")
body.addObject(fillet4)
fillet4.Base = (pocket7, edges_at(pocket7, [
    (-11.25, -5.8, 0),
    (0, -1.3, 0),
    (11.25, -5.8, 0),
    (-18, -2.9, 0),
    (18, -2.9, 0),
    (0, 18.2, 0),
    (0, 40.233, 4),
    (-11.25, -5.8, 4),
    (11.25, -5.8, 4),
    (0, -1.3, 4),
]))
fillet4.setExpression("Radius", "Params.fillet4_radius")

doc.recompute()
